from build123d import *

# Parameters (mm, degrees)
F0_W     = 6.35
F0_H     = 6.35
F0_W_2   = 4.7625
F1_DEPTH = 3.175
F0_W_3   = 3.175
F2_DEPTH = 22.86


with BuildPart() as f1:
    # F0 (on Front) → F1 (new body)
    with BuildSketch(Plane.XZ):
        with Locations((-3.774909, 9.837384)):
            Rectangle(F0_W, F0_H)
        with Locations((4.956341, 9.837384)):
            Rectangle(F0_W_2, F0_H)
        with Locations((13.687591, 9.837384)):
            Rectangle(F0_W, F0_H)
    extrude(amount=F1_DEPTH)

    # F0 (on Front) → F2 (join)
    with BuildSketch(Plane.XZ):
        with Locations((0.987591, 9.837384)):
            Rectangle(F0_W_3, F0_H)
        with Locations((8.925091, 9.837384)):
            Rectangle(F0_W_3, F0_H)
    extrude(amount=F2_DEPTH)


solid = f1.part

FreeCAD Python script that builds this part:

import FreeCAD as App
import Part
import Sketcher
Q = App.Units.Quantity


def add_polygon(sketch, points):
    """Adds a closed chain of lines whose ends are joined by coincident constraints."""
    first, n = sketch.GeometryCount, len(points)
    for a, b in zip(points, points[1:] + points[:1]):
        sketch.addGeometry(Part.LineSegment(App.Vector(*a, 0), App.Vector(*b, 0)), False)
    for i in range(n):
        sketch.addConstraint(Sketcher.Constraint("Coincident", first + i, 2, first + (i + 1) % n, 1))

doc = App.newDocument("Part")
params = doc.addObject("Spreadsheet::Sheet", "Params")
for row, (alias, value) in enumerate([
    ("sketch1_width", "0.25 in"),
    ("sketch1_width2", "0.1875 in"),
    ("pad1_length", "0.125 in"),
    ("sketch2_height", "0.25 in"),
    ("sketch2_width", "0.125 in"),
    ("pad2_length", "0.9 in"),
], start=1):
    params.set(f"A{row}", alias)
    params.set(f"B{row}", "=" + value)
    params.setAlias(f"B{row}", alias)

body = doc.addObject("PartDesign::Body", "Body")
body.AllowCompound = True

# Sketch on XZ plane
sketch1 = doc.addObject("Sketcher::SketchObject", "Sketch")
body.addObject(sketch1)
sketch1.AttachmentSupport = (doc.XZ_Plane, [""])
sketch1.MapMode = "FlatFace"
add_polygon(sketch1, [(-6.9, 13), (-6.9, 6.7), (-0.6, 6.7), (-0.6, 13)])  # lines 0-3
add_polygon(sketch1, [(2.6, 13), (2.6, 6.7), (7.3, 6.7), (7.3, 13)])  # lines 4-7
add_polygon(sketch1, [(10.5, 13), (10.5, 6.7), (16.9, 6.7), (16.9, 13)])  # lines 8-11
sketch1.addConstraint(Sketcher.Constraint("Vertical", 0))
sketch1.addConstraint(Sketcher.Constraint("Horizontal", 1))
sketch1.addConstraint(Sketcher.Constraint("Vertical", 2))
sketch1.addConstraint(Sketcher.Constraint("Horizontal", 3))
sketch1.addConstraint(Sketcher.Constraint("Vertical", 4))
sketch1.addConstraint(Sketcher.Constraint("Horizontal", 5))
sketch1.addConstraint(Sketcher.Constraint("Vertical", 6))
sketch1.addConstraint(Sketcher.Constraint("Horizontal", 7))
sketch1.addConstraint(Sketcher.Constraint("Vertical", 8))
sketch1.addConstraint(Sketcher.Constraint("Horizontal", 9))
sketch1.addConstraint(Sketcher.Constraint("Vertical", 10))
sketch1.addConstraint(Sketcher.Constraint("Horizontal", 11))
sketch1.addConstraint(Sketcher.Constraint("Horizontal", 1, 2, 4, 2))
sketch1.addConstraint(Sketcher.Constraint("Horizontal", 3, 2, 6, 2))
sketch1.addConstraint(Sketcher.Constraint("Horizontal", 5, 2, 8, 2))
sketch1.addConstraint(Sketcher.Constraint("Horizontal", 7, 2, 10, 2))
sketch1.addConstraint(Sketcher.Constraint("Equal", 3, 9))
sketch1.addConstraint(Sketcher.Constraint("Equal", 11, 0))
sketch1.addConstraint(Sketcher.Constraint("DistanceX", 1, 1, 1, 2, Q("0.25 in")))
sketch1.addConstraint(Sketcher.Constraint("DistanceX", 5, 1, 5, 2, Q("0.1875 in")))
sketch1.addConstraint(Sketcher.Constraint("DistanceX", 1, 2, 4, 2, Q("0.125 in")))
sketch1.addConstraint(Sketcher.Constraint("DistanceX", 5, 2, 8, 2, Q("0.125 in")))
sketch1.addConstraint(Sketcher.Constraint("DistanceX", 0, 2, -1, 1, Q("6.949909 mm")))
sketch1.addConstraint(Sketcher.Constraint("DistanceY", -1, 1, 0, 2, Q("6.662384 mm")))
sketch1.setExpression("Constraints[30]", "Params.sketch1_width")
sketch1.setExpression("Constraints[31]", "Params.sketch1_width2")
pad1 = doc.addObject("PartDesign::Pad", "Pad")
body.addObject(pad1)
pad1.Profile = sketch1
pad1.setExpression("Length", "Params.pad1_length")

# Sketch on XZ plane
sketch2 = doc.addObject("Sketcher::SketchObject", "Sketch001")
body.addObject(sketch2)
sketch2.AttachmentSupport = (doc.XZ_Plane, [""])
sketch2.MapMode = "FlatFace"
add_polygon(sketch2, [(-0.6, 13), (-0.6, 6.7), (2.6, 6.7), (2.6, 13)])  # lines 0-3
add_polygon(sketch2, [(7.3, 13), (7.3, 6.7), (10.5, 6.7), (10.5, 13)])  # lines 4-7
sketch2.addConstraint(Sketcher.Constraint("Vertical", 0))
sketch2.addConstraint(Sketcher.Constraint("Horizontal", 1))
sketch2.addConstraint(Sketcher.Constraint("Vertical", 2))
sketch2.addConstraint(Sketcher.Constraint("Horizontal", 3))
sketch2.addConstraint(Sketcher.Constraint("Vertical", 4))
sketch2.addConstraint(Sketcher.Constraint("Horizontal", 5))
sketch2.addConstraint(Sketcher.Constraint("Vertical", 6))
sketch2.addConstraint(Sketcher.Constraint("Horizontal", 7))
sketch2.addConstraint(Sketcher.Constraint("Horizontal", 1, 2, 4, 2))
sketch2.addConstraint(Sketcher.Constraint("Horizontal", 3, 2, 6, 2))
sketch2.addConstraint(Sketcher.Constraint("Equal", 3, 5))
sketch2.addConstraint(Sketcher.Constraint("DistanceY", 0, 2, 0, 1, Q("0.25 in")))
sketch2.addConstraint(Sketcher.Constraint("DistanceX", 1, 1, 1, 2, Q("0.125 in")))
sketch2.addConstraint(Sketcher.Constraint("DistanceX", 1, 2, 4, 2, Q("0.1875 in")))
sketch2.addConstraint(Sketcher.Constraint("DistanceX", 0, 2, -1, 1, Q("0.599909 mm")))
sketch2.addConstraint(Sketcher.Constraint("DistanceY", -1, 1, 0, 2, Q("6.662384 mm")))
sketch2.setExpression("Constraints[19]", "Params.sketch2_height")
sketch2.setExpression("Constraints[20]", "Params.sketch2_width")
pad2 = doc.addObject("PartDesign::Pad", "Pad001")
body.addObject(pad2)
pad2.Profile = sketch2
pad2.setExpression("Length", "Params.pad2_length")

doc.recompute()
